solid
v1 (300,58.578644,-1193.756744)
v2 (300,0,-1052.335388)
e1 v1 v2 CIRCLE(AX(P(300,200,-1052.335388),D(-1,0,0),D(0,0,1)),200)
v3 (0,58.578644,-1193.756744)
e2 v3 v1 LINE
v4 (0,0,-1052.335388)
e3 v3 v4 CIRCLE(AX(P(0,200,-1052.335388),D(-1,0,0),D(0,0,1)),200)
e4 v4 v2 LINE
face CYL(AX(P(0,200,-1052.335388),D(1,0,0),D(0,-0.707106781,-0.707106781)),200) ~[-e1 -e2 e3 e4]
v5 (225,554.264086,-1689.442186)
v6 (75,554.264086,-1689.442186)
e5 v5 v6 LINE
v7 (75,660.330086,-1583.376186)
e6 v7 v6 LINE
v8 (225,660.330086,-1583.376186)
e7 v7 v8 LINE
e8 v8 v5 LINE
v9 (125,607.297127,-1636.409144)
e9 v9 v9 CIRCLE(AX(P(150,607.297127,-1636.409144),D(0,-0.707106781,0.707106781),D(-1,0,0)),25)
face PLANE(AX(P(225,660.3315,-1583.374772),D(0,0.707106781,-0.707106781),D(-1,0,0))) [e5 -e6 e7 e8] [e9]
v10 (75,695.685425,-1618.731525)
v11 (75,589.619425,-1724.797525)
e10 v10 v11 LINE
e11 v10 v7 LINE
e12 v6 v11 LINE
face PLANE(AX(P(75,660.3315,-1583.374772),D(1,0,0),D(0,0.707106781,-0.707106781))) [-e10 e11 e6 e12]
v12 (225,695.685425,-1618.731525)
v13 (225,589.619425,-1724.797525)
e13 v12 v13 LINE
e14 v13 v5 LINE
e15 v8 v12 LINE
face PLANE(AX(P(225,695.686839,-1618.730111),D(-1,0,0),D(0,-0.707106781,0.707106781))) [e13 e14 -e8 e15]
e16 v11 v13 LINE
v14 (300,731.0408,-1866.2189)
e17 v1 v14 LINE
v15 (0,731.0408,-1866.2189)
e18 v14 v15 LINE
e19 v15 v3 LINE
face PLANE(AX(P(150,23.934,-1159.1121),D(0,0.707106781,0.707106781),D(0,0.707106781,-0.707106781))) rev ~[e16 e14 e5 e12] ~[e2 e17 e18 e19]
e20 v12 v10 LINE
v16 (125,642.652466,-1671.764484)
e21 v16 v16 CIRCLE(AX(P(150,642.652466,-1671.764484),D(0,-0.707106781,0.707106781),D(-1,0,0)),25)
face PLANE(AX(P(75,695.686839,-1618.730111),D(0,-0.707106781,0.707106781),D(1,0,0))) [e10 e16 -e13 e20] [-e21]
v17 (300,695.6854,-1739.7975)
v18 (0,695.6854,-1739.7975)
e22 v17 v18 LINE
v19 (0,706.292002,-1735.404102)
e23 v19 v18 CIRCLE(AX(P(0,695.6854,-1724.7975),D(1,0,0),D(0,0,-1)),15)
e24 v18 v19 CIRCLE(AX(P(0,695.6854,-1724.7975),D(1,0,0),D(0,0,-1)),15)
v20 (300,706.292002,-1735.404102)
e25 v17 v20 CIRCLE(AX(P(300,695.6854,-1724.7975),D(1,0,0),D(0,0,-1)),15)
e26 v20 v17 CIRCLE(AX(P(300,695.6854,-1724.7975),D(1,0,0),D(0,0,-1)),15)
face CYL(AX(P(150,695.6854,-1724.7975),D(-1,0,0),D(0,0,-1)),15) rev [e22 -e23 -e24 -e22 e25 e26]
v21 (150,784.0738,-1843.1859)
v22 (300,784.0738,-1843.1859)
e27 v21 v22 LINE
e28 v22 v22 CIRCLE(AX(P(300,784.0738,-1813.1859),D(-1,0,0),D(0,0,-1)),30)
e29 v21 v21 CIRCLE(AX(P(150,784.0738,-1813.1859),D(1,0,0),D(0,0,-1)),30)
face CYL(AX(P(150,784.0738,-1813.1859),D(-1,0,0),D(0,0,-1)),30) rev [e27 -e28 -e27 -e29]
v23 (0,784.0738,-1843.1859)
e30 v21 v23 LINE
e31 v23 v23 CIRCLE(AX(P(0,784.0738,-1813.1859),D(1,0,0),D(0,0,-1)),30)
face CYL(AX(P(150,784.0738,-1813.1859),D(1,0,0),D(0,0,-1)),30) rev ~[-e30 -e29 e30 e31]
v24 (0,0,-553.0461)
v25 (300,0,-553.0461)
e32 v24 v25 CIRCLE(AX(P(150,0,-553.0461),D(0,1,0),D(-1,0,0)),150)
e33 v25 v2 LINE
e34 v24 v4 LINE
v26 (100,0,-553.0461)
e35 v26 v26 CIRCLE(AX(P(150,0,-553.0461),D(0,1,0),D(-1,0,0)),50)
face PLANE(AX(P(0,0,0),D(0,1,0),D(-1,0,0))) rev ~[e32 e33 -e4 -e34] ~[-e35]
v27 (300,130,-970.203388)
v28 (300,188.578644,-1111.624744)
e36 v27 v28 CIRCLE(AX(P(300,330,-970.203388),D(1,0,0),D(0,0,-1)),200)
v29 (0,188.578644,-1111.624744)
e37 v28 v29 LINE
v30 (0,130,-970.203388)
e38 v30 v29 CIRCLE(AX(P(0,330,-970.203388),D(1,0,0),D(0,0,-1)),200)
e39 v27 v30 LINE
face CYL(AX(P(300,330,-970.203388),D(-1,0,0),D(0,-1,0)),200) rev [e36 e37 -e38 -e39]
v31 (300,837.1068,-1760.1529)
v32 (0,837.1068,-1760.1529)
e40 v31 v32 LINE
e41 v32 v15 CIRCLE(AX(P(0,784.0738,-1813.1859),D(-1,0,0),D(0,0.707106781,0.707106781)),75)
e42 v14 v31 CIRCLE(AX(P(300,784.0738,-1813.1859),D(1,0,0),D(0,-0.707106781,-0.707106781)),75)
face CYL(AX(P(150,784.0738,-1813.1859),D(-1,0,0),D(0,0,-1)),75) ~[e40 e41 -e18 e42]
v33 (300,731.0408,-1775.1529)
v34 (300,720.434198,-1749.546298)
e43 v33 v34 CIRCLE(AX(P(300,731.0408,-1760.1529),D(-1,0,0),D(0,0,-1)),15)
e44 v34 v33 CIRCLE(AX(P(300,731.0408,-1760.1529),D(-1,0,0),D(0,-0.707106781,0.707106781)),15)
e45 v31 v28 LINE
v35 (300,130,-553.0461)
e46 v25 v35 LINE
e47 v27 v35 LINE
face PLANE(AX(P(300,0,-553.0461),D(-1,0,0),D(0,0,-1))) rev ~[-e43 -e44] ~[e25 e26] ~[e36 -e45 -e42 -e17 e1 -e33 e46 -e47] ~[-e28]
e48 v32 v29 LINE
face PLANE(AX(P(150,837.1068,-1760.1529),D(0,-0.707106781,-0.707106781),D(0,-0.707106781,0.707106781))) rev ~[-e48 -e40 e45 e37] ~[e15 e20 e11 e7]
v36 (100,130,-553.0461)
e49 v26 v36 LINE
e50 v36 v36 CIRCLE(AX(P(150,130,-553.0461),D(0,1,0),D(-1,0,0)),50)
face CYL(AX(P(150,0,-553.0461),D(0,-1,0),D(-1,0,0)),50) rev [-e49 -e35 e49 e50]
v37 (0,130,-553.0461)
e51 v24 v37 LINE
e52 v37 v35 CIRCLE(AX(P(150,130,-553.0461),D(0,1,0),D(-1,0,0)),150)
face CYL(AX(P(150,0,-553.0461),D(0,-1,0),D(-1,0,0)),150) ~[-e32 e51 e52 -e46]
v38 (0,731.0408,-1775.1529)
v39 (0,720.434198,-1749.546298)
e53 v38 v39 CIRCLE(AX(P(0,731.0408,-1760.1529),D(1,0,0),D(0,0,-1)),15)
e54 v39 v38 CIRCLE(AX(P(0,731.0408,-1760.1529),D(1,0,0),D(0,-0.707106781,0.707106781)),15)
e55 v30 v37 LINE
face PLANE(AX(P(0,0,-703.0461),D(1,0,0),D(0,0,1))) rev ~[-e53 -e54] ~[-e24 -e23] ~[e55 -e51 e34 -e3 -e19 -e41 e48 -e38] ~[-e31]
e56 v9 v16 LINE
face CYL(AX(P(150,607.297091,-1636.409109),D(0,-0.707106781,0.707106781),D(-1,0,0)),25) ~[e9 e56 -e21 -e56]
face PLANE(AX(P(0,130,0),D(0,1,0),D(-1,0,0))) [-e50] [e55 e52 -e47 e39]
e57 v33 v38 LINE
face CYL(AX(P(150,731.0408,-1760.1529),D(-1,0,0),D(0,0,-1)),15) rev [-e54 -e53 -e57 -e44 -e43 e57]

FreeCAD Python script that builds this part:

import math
import FreeCAD as App
import Part
import Sketcher
from FreeCAD import Vector
Q = App.Units.Quantity


def edges_at(feature, points):
    """Names of the edges that pass closest to the given points."""
    edges = feature.Shape.Edges
    near = lambda p: min(range(len(edges)), key=lambda i: edges[i].distToShape(Part.Vertex(*p))[0])
    return sorted({f"Edge{near(p) + 1}" for p in points})

doc = App.newDocument("Part")
params = doc.addObject("Spreadsheet::Sheet", "Params")
for row, (alias, value) in enumerate([
    ("sketch1_diameter", "100 mm"),
    ("sketch1_radius", "150 mm"),
    ("sketch1_height", "150 mm"),
    ("pad1_length", "130 mm"),
    ("sketch2_diameter", "30 mm"),
    ("sketch2_diameter2", "60 mm"),
    ("sketch2_radius", "75 mm"),
    ("sketch2_length", "1000 mm"),
    ("sketch2_width", "130 mm"),
    ("pad2_length", "300 mm"),
    ("sketch3_width", "150 mm"),
    ("sketch3_height", "50 mm"),
    ("pocket1_length", "300 mm"),
    ("fillet_radius", "200 mm"),
    ("sketch4_diameter", "50 mm"),
], start=1):
    params.set(f"A{row}", alias)
    params.set(f"B{row}", "=" + value)
    params.setAlias(f"B{row}", alias)

body = doc.addObject("PartDesign::Body", "Body")

# Sketch on XZ plane
sketch1 = doc.addObject("Sketcher::SketchObject", "Sketch")
body.addObject(sketch1)
sketch1.AttachmentSupport = (doc.XZ_Plane, [""])
sketch1.MapMode = "FlatFace"
sketch1.addGeometry([
    Part.LineSegment(Vector(300, -703.0461, 0), Vector(0, -703.0461, 0)),  # 0
    Part.LineSegment(Vector(0, -703.0461, 0), Vector(0, -553.0461, 0)),  # 1
    Part.ArcOfCircle(Part.Circle(Vector(150, -553.0461, 0), Vector(0, 0, 1), 150), math.radians(0), math.radians(180)),  # 2
    Part.LineSegment(Vector(300, -553.0461, 0), Vector(300, -703.0461, 0)),  # 3
    Part.Circle(Vector(150, -553.0461, 0), Vector(0, 0, 1), 50),  # 4
], False)
sketch1.addConstraint([
    Sketcher.Constraint("Coincident", 0, 2, 1, 1),
    Sketcher.Constraint("Tangent", 1, 2, 2, 2),
    Sketcher.Constraint("Tangent", 2, 1, 3, 1),
    Sketcher.Constraint("Coincident", 3, 2, 0, 1),
    Sketcher.Constraint("Horizontal", 0),
    Sketcher.Constraint("Vertical", 1),
    Sketcher.Constraint("Vertical", 3),
    Sketcher.Constraint("Coincident", 4, 3, 2, 3),
    Sketcher.Constraint("PointOnObject", 0, 2, -2),
    Sketcher.Constraint("Diameter", 4, Q("100 mm")),
    Sketcher.Constraint("Radius", 2, Q("150 mm")),
    Sketcher.Constraint("DistanceY", 1, 1, 1, 2, Q("150 mm")),
    Sketcher.Constraint("DistanceY", 2, 3, -1, 1, Q("553.046 mm")),
])
sketch1.setExpression("Constraints[9]", "Params.sketch1_diameter")
sketch1.setExpression("Constraints[10]", "Params.sketch1_radius")
sketch1.setExpression("Constraints[11]", "Params.sketch1_height")
pad1 = doc.addObject("PartDesign::Pad", "Pad")
body.addObject(pad1)
pad1.Profile = sketch1
pad1.setExpression("Length", "Params.pad1_length")
pad1.Reversed = True

# Sketch on YZ plane
sketch2 = doc.addObject("Sketcher::SketchObject", "Sketch001")
body.addObject(sketch2)
sketch2.AttachmentSupport = (doc.YZ_Plane, [""])
sketch2.MapMode = "FlatFace"
sketch2.AttachmentOffset = App.Placement(Vector(0, 0, 150), App.Rotation())
sketch2.addGeometry([
    Part.LineSegment(Vector(130, -1053.0461, 0), Vector(130, -703.0461, 0)),  # 0
    Part.LineSegment(Vector(130, -703.0461, 0), Vector(0, -703.0461, 0)),  # 1
    Part.LineSegment(Vector(0, -703.0461, 0), Vector(0, -1135.1781, 0)),  # 2
    Part.LineSegment(Vector(0, -1135.1781, 0), Vector(731.0408, -1866.2189, 0)),  # 3
    Part.ArcOfCircle(Part.Circle(Vector(784.0738, -1813.1859, 0), Vector(0, 0, 1), 75), math.radians(-135), math.radians(45)),  # 4
    Part.LineSegment(Vector(837.1068, -1760.1529, 0), Vector(130, -1053.0461, 0)),  # 5
    Part.Circle(Vector(731.0408, -1760.1529, 0), Vector(0, 0, 1), 15),  # 6
    Part.Circle(Vector(695.6854, -1724.7975, 0), Vector(0, 0, 1), 15),  # 7
    Part.Circle(Vector(784.0738, -1813.1859, 0), Vector(0, 0, 1), 30),  # 8
], False)
sketch2.addConstraint([
    Sketcher.Constraint("Coincident", 0, 2, 1, 1),
    Sketcher.Constraint("Coincident", 1, 2, 2, 1),
    Sketcher.Constraint("Coincident", 2, 2, 3, 1),
    Sketcher.Constraint("Tangent", 3, 2, 4, 1),
    Sketcher.Constraint("Tangent", 4, 2, 5, 1),
    Sketcher.Constraint("Coincident", 5, 2, 0, 1),
    Sketcher.Constraint("Vertical", 0),
    Sketcher.Constraint("Horizontal", 1),
    Sketcher.Constraint("Vertical", 2),
    Sketcher.Constraint("Coincident", 8, 3, 4, 3),
    Sketcher.Constraint("Equal", 6, 7),
    Sketcher.Constraint("PointOnObject", 1, 2, -2),
    Sketcher.Constraint("Parallel", 3, 5),
    Sketcher.Constraint("Horizontal", 6, 3, 4, 2),
    Sketcher.Constraint("Vertical", 6, 3, 3, 2),
    Sketcher.Constraint("Diameter", 6, Q("30 mm")),
    Sketcher.Constraint("Diameter", 8, Q("60 mm")),
    Sketcher.Constraint("Radius", 4, Q("75 mm")),
    Sketcher.Constraint("Angle", 3, Q("-45 deg")),
    Sketcher.Constraint("Distance", 5, Q("1000 mm")),
    Sketcher.Constraint("DistanceX", 1, 2, 1, 1, Q("130 mm")),
    Sketcher.Constraint("DistanceY", 0, 1, 0, 2, Q("350 mm")),
    Sketcher.Constraint("DistanceY", 4, 3, -1, 1, Q("1813.186 mm")),
    Sketcher.Constraint("DistanceX", -1, 1, 7, 3, Q("695.6854 mm")),
    Sketcher.Constraint("DistanceY", 7, 3, -1, 1, Q("1724.7975 mm")),
])
sketch2.setExpression("Constraints[15]", "Params.sketch2_diameter")
sketch2.setExpression("Constraints[16]", "Params.sketch2_diameter2")
sketch2.setExpression("Constraints[17]", "Params.sketch2_radius")
sketch2.setExpression("Constraints[19]", "Params.sketch2_length")
sketch2.setExpression("Constraints[20]", "Params.sketch2_width")
pad2 = doc.addObject("PartDesign::Pad", "Pad001")
body.addObject(pad2)
pad2.Profile = sketch2
pad2.setExpression("Length", "Params.pad2_length")
pad2.Midplane = True

# Sketch on an angled plane
sketch3 = doc.addObject("Sketcher::SketchObject", "Sketch002")
body.addObject(sketch3)
sketch3.Placement = App.Placement(Vector(0, 130, -1053.0461), App.Rotation(Vector(1, 0, 0), Vector(0, 0.707106781, -0.707106781), Vector(0, 0.707106781, 0.707106781), "ZXY"))
sketch3.addGeometry([
    Part.LineSegment(Vector(225, 800, 0), Vector(75, 800, 0)),
    Part.LineSegment(Vector(75, 800, 0), Vector(75, 750, 0)),
    Part.LineSegment(Vector(75, 750, 0), Vector(225, 750, 0)),
    Part.LineSegment(Vector(225, 750, 0), Vector(225, 800, 0)),
], False)
sketch3.addConstraint([
    Sketcher.Constraint("Coincident", 0, 2, 1, 1),
    Sketcher.Constraint("Coincident", 1, 2, 2, 1),
    Sketcher.Constraint("Coincident", 2, 2, 3, 1),
    Sketcher.Constraint("Coincident", 3, 2, 0, 1),
    Sketcher.Constraint("Horizontal", 0),
    Sketcher.Constraint("Vertical", 1),
    Sketcher.Constraint("Horizontal", 2),
    Sketcher.Constraint("Vertical", 3),
    Sketcher.Constraint("DistanceX", 0, 2, 0, 1, Q("150 mm")),
    Sketcher.Constraint("DistanceY", 1, 2, 1, 1, Q("50 mm")),
    Sketcher.Constraint("DistanceX", -1, 1, 0, 2, Q("75 mm")),
    Sketcher.Constraint("DistanceY", -1, 1, 0, 2, Q("800 mm")),
])
sketch3.setExpression("Constraints[8]", "Params.sketch3_width")
sketch3.setExpression("Constraints[9]", "Params.sketch3_height")
pocket1 = doc.addObject("PartDesign::Pocket", "Pocket")
body.addObject(pocket1)
pocket1.Profile = sketch3
pocket1.setExpression("Length", "Params.pocket1_length")
doc.recompute()

fillet = doc.addObject("PartDesign::Fillet", "Fillet")
body.addObject(fillet)
fillet.Base = (pocket1, edges_at(pocket1, [(150, 130, -1053.046), (150, 0, -1135.178)]))
fillet.setExpression("Radius", "Params.fillet_radius")

# Sketch on an angled plane
sketch4 = doc.addObject("Sketcher::SketchObject", "Sketch003")
body.addObject(sketch4)
sketch4.Placement = App.Placement(Vector(225, 660.3301, -1583.3761), App.Rotation(Vector(-1, 0, 0), Vector(0, 0.707106781, 0.707106781), Vector(0, 0.707106781, -0.707106781), "ZXY"))
sketch4.addGeometry(Part.Circle(Vector(75, -75, 0), Vector(0, 0, 1), 25), False)
sketch4.addConstraint([
    Sketcher.Constraint("Diameter", 0, Q("50 mm")),
    Sketcher.Constraint("DistanceX", -1, 1, 0, 3, Q("75 mm")),
    Sketcher.Constraint("DistanceY", 0, 3, -1, 1, Q("75 mm")),
])
sketch4.setExpression("Constraints[0]", "Params.sketch4_diameter")
pad3 = doc.addObject("PartDesign::Pad", "Pad002")
body.addObject(pad3)
pad3.Profile = sketch4
pad3.Type = "UpToFirst"

doc.recompute()
